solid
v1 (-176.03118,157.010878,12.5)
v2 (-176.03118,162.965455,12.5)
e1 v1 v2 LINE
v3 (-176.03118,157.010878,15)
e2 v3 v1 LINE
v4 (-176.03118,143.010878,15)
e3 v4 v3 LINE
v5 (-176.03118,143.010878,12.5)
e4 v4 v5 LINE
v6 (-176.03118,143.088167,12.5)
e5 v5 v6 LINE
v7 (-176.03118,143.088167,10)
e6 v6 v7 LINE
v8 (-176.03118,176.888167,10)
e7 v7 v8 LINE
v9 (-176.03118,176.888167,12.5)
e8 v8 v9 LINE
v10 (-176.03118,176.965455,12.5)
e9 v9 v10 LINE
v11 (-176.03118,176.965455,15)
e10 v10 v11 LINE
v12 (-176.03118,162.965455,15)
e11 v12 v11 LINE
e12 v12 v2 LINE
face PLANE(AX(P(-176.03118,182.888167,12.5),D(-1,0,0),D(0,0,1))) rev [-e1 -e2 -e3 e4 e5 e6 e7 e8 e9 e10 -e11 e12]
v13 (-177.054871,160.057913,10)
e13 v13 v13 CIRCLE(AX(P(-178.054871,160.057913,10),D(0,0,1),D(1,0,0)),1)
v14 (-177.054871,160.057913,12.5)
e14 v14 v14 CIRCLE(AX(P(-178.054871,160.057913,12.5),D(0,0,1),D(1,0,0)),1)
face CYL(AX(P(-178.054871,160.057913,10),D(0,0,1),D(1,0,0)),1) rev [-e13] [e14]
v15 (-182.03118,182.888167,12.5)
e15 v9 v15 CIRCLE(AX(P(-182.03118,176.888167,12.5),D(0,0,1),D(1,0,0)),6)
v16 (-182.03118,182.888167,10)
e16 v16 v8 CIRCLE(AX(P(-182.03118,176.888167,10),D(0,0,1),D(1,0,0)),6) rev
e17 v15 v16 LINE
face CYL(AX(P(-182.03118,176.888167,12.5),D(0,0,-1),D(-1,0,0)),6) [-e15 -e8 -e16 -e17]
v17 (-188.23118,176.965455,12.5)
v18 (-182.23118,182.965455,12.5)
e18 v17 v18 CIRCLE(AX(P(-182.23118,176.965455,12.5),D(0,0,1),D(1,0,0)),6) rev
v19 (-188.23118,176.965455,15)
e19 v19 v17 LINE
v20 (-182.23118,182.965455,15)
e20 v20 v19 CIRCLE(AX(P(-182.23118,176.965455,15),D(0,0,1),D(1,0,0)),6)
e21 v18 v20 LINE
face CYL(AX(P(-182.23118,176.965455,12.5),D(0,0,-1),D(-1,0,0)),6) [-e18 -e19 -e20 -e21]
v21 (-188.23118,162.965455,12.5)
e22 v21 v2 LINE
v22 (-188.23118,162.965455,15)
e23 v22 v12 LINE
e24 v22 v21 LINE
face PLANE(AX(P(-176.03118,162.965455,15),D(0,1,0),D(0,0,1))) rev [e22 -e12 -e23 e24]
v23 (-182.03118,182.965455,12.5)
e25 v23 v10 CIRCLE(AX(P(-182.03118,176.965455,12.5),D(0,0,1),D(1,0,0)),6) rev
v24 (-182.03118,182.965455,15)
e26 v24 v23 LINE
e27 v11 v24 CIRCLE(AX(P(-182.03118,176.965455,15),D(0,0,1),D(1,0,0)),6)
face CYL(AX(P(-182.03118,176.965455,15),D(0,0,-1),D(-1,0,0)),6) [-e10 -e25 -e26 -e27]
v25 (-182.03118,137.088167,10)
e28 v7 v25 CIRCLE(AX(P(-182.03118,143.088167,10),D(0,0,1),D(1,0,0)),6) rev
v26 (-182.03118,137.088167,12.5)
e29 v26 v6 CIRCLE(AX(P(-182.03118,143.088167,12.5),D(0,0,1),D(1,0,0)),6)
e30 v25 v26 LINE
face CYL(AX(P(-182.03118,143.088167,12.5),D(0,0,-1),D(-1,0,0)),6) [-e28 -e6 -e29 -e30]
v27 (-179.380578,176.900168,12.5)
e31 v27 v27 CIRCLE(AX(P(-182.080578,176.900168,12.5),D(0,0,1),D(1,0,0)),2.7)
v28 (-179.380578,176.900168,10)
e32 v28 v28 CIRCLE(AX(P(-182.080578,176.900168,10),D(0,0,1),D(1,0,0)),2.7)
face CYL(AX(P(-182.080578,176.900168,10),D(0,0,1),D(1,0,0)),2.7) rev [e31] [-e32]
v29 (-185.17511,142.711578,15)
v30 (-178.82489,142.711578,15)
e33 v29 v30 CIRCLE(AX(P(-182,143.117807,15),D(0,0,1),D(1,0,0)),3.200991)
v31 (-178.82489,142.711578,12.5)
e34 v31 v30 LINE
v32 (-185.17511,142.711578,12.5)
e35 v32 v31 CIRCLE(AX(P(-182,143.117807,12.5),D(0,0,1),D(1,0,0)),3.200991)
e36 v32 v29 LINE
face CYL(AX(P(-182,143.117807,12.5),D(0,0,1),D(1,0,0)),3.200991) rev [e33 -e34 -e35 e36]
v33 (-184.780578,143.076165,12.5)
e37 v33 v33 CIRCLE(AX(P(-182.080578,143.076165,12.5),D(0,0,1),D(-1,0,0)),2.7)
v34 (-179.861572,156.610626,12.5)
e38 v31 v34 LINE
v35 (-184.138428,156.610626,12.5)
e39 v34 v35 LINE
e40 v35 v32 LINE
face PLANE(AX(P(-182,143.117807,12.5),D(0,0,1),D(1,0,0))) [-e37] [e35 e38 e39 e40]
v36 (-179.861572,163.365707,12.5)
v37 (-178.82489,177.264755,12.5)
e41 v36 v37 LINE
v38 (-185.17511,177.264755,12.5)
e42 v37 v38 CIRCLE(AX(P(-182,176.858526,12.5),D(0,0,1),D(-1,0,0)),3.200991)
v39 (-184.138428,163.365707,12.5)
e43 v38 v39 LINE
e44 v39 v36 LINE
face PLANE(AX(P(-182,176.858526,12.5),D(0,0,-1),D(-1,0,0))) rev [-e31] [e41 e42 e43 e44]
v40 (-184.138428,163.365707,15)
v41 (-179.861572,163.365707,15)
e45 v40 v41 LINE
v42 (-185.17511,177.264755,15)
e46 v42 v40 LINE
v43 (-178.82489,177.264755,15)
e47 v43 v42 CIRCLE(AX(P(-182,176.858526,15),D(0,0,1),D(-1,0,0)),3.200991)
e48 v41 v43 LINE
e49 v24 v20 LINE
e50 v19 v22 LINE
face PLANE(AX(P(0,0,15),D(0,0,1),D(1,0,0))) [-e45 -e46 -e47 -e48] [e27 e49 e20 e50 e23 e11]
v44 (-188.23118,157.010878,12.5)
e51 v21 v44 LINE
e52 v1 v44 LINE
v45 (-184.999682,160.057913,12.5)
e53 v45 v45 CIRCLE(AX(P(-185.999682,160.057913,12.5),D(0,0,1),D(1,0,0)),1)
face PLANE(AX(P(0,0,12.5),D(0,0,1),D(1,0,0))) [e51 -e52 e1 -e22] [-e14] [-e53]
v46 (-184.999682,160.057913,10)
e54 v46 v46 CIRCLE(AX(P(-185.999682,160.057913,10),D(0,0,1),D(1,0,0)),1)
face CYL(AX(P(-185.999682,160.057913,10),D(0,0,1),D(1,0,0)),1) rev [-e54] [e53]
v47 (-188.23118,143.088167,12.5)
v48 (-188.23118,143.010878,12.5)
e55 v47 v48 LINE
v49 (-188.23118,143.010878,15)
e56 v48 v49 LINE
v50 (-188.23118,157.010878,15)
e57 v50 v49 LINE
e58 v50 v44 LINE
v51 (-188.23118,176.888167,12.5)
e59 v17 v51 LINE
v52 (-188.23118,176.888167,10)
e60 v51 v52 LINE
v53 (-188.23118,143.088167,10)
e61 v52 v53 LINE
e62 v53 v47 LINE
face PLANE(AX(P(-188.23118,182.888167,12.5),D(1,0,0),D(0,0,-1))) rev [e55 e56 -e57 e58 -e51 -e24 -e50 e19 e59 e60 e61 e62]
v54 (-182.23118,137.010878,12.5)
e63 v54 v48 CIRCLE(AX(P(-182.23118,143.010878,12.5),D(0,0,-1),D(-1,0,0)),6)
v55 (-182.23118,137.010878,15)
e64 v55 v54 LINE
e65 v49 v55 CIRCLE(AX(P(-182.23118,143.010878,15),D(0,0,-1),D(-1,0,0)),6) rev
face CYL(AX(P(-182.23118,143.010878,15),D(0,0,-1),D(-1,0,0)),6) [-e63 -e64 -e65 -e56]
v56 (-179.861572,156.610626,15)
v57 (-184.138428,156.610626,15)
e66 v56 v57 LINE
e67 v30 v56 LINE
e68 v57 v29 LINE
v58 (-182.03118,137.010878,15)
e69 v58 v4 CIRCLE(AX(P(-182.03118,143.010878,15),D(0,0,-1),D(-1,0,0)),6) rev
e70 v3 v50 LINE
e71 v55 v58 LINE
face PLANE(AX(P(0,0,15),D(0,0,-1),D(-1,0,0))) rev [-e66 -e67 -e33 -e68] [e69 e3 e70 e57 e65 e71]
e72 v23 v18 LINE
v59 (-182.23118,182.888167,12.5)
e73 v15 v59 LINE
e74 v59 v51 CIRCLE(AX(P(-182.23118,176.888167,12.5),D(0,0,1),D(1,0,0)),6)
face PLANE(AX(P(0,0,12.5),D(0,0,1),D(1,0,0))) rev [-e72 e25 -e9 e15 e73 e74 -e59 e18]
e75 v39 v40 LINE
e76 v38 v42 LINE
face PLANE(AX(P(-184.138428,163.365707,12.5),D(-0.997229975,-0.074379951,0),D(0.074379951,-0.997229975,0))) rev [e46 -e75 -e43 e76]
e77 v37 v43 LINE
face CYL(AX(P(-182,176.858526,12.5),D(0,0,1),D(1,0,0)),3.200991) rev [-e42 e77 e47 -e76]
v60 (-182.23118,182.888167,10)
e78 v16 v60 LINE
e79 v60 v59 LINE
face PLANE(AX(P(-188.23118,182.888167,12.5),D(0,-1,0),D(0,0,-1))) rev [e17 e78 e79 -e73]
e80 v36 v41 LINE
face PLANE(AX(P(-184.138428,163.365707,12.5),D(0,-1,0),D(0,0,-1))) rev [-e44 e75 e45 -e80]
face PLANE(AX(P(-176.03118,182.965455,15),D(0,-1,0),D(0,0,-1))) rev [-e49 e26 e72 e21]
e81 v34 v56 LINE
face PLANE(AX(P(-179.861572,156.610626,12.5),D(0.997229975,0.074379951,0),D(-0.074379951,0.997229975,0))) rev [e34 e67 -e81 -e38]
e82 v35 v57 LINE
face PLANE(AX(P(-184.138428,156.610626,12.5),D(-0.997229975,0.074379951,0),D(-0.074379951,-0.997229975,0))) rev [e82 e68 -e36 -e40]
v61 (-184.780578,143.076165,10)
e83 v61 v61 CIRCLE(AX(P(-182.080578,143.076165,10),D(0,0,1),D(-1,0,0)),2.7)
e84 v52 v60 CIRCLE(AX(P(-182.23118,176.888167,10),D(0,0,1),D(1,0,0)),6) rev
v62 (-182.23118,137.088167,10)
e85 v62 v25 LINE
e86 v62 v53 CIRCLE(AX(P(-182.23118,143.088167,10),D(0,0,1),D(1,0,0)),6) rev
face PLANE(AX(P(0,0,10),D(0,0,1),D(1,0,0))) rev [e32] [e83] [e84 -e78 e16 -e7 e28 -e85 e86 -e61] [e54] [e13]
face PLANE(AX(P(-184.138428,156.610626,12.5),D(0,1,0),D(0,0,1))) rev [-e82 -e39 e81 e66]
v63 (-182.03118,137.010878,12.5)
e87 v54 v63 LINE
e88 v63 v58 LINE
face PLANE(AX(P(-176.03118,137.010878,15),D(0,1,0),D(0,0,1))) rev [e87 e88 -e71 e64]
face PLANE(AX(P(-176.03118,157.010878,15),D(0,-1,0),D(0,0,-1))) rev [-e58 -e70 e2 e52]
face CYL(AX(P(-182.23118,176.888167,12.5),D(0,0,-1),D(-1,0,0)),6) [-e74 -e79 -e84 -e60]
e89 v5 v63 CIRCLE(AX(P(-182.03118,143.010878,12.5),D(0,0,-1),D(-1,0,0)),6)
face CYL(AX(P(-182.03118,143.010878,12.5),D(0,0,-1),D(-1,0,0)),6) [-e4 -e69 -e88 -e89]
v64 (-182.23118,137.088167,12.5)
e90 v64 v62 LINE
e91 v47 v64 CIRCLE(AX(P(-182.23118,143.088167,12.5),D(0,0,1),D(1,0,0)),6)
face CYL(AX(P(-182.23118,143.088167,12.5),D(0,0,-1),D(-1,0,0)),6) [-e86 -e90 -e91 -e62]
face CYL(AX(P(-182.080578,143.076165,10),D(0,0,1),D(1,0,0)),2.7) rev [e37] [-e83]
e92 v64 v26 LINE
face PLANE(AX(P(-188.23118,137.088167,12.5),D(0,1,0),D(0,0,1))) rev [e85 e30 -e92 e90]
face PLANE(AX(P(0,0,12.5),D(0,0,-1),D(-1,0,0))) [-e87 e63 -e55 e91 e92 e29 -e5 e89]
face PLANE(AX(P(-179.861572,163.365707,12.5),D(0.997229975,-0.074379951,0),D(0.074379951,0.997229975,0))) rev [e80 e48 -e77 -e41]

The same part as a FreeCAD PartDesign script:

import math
import FreeCAD as App
import Part
import Sketcher

V = App.Vector
Q = App.Units.Quantity


def edges_at(feature, points):
    """Names of the edges that pass closest to the given points."""
    edges = feature.Shape.Edges
    near = lambda p: min(range(len(edges)), key=lambda i: edges[i].distToShape(Part.Vertex(*p))[0])
    return sorted({f"Edge{near(p) + 1}" for p in points})

doc = App.newDocument("Part")
body = doc.addObject("PartDesign::Body", "Body")

# Sketch on XY plane
sketch1 = body.newObject("Sketcher::SketchObject", "Sketch")
sketch1.AttachmentSupport = (doc.getObject("XY_Plane"), [""])
sketch1.MapMode = "FlatFace"
sketch1.AttachmentOffset = App.Placement(V(0, 0, 10), App.Rotation())
sketch1.addGeometry([
    Part.LineSegment(V(-188.23118, 182.888167, 0), V(-188.23118, 137.088167, 0)),
    Part.LineSegment(V(-188.23118, 137.088167, 0), V(-176.03118, 137.088167, 0)),
    Part.LineSegment(V(-176.03118, 137.088167, 0), V(-176.03118, 182.888167, 0)),
    Part.LineSegment(V(-176.03118, 182.888167, 0), V(-188.23118, 182.888167, 0)),
], False)
sketch1.addConstraint([
    Sketcher.Constraint("Coincident", 0, 2, 1, 1),
    Sketcher.Constraint("Coincident", 1, 2, 2, 1),
    Sketcher.Constraint("Coincident", 2, 2, 3, 1),
    Sketcher.Constraint("Coincident", 3, 2, 0, 1),
    Sketcher.Constraint("Vertical", 0),
    Sketcher.Constraint("Horizontal", 1),
    Sketcher.Constraint("Vertical", 2),
    Sketcher.Constraint("Horizontal", 3),
    Sketcher.Constraint("DistanceX", 1, 1, 1, 2, Q("12.2 mm")),
    Sketcher.Constraint("DistanceY", 0, 2, 0, 1, Q("45.8 mm")),
    Sketcher.Constraint("DistanceX", 0, 2, -1, 1, Q("188.23118 mm")),
    Sketcher.Constraint("DistanceY", -1, 1, 0, 2, Q("137.088167 mm")),
])
pad1 = body.newObject("PartDesign::Pad", "Pad")
pad1.Profile = sketch1
pad1.Length = 2.5
doc.recompute()

fillet = body.newObject("PartDesign::Fillet", "Fillet")
fillet.Base = (pad1, edges_at(pad1, [
    (-188.231, 182.888, 11.25),
    (-176.031, 182.888, 11.25),
    (-176.031, 137.088, 11.25),
    (-188.231, 137.088, 11.25),
]))
fillet.Radius = 6

# Sketch on XY plane
sketch2 = body.newObject("Sketcher::SketchObject", "Sketch001")
sketch2.AttachmentSupport = (doc.getObject("XY_Plane"), [""])
sketch2.MapMode = "FlatFace"
sketch2.AttachmentOffset = App.Placement(V(0, 0, 12.5), App.Rotation())
sketch2.addGeometry([
    Part.LineSegment(V(-188.23118, 182.965455, 0), V(-188.23118, 162.965455, 0)),  # 0
    Part.LineSegment(V(-188.23118, 162.965455, 0), V(-176.03118, 162.965455, 0)),  # 1
    Part.LineSegment(V(-176.03118, 162.965455, 0), V(-176.03118, 182.965455, 0)),  # 2
    Part.LineSegment(V(-176.03118, 182.965455, 0), V(-188.23118, 182.965455, 0)),  # 3
    Part.LineSegment(V(-188.23118, 157.010878, 0), V(-188.23118, 137.010878, 0)),  # 4
    Part.LineSegment(V(-188.23118, 137.010878, 0), V(-176.03118, 137.010878, 0)),  # 5
    Part.LineSegment(V(-176.03118, 137.010878, 0), V(-176.03118, 157.010878, 0)),  # 6
    Part.LineSegment(V(-176.03118, 157.010878, 0), V(-188.23118, 157.010878, 0)),  # 7
], False)
sketch2.addConstraint([
    Sketcher.Constraint("Coincident", 0, 2, 1, 1),
    Sketcher.Constraint("Coincident", 1, 2, 2, 1),
    Sketcher.Constraint("Coincident", 2, 2, 3, 1),
    Sketcher.Constraint("Coincident", 3, 2, 0, 1),
    Sketcher.Constraint("Coincident", 4, 2, 5, 1),
    Sketcher.Constraint("Coincident", 5, 2, 6, 1),
    Sketcher.Constraint("Coincident", 6, 2, 7, 1),
    Sketcher.Constraint("Coincident", 7, 2, 4, 1),
    Sketcher.Constraint("Vertical", 0),
    Sketcher.Constraint("Horizontal", 1),
    Sketcher.Constraint("Vertical", 2),
    Sketcher.Constraint("Horizontal", 3),
    Sketcher.Constraint("Vertical", 4),
    Sketcher.Constraint("Horizontal", 5),
    Sketcher.Constraint("Vertical", 6),
    Sketcher.Constraint("Horizontal", 7),
    Sketcher.Constraint("Vertical", 3, 2, 4, 2),
    Sketcher.Constraint("Vertical", 2, 2, 5, 2),
    Sketcher.Constraint("Equal", 2, 4),
    Sketcher.Constraint("DistanceY", 0, 2, 0, 1, Q("20 mm")),
    Sketcher.Constraint("DistanceX", 1, 1, 1, 2, Q("12.2 mm")),
    Sketcher.Constraint("DistanceX", 0, 2, -1, 1, Q("188.23118 mm")),
    Sketcher.Constraint("DistanceY", -1, 1, 4, 2, Q("137.010878 mm")),
    Sketcher.Constraint("DistanceY", -1, 1, 0, 2, Q("162.965455 mm")),
])
pad2 = body.newObject("PartDesign::Pad", "Pad001")
pad2.Profile = sketch2
pad2.Length = 2.5
doc.recompute()

fillet2 = body.newObject("PartDesign::Fillet", "Fillet001")
fillet2.Base = (pad2, edges_at(pad2, [
    (-176.031, 182.965, 13.75),
    (-188.231, 182.965, 13.75),
    (-176.031, 137.011, 13.75),
    (-188.231, 137.011, 13.75),
]))
fillet2.Radius = 6

# Sketch on XY plane
sketch3 = body.newObject("Sketcher::SketchObject", "Sketch002")
sketch3.AttachmentSupport = (doc.getObject("XY_Plane"), [""])
sketch3.MapMode = "FlatFace"
sketch3.AttachmentOffset = App.Placement(V(0, 0, 12.5), App.Rotation())
sketch3.addGeometry([
    Part.Circle(V(-185.999682, 160.057913, 0), V(0, 0, 1), 1),
    Part.Circle(V(-178.054871, 160.057913, 0), V(0, 0, 1), 1),
], False)
sketch3.addConstraint([
    Sketcher.Constraint("Equal", 0, 1),
    Sketcher.Constraint("Horizontal", 0, 3, 1, 3),
    Sketcher.Constraint("Diameter", 0, Q("2 mm")),
    Sketcher.Constraint("DistanceX", 1, 3, -1, 1, Q("178.054871 mm")),
    Sketcher.Constraint("DistanceX", 0, 3, 1, 3, Q("7.944811 mm")),
    Sketcher.Constraint("DistanceY", -1, 1, 0, 3, Q("160.057913 mm")),
])
pocket1 = body.newObject("PartDesign::Pocket", "Pocket")
pocket1.Profile = sketch3
pocket1.Length = 2.5

# Sketch on XY plane
sketch4 = body.newObject("Sketcher::SketchObject", "Sketch003")
sketch4.AttachmentSupport = (doc.getObject("XY_Plane"), [""])
sketch4.MapMode = "FlatFace"
sketch4.AttachmentOffset = App.Placement(V(0, 0, 15), App.Rotation())
sketch4.addGeometry([
    Part.LineSegment(V(-184.138428, 163.365707, 0), V(-179.861572, 163.365707, 0)),  # 0
    Part.LineSegment(V(-179.861572, 163.365707, 0), V(-178.82489, 177.264755, 0)),  # 1
    Part.ArcOfCircle(Part.Circle(V(-182, 176.858526, 0), V(0, 0, 1), 3.200991), math.radians(7.290906), math.radians(172.709094)),  # 2
    Part.LineSegment(V(-185.17511, 177.264755, 0), V(-184.138428, 163.365707, 0)),  # 3
    Part.LineSegment(V(-184.138428, 156.610626, 0), V(-185.17511, 142.711578, 0)),  # 4
    Part.ArcOfCircle(Part.Circle(V(-182, 143.117807, 0), V(0, 0, 1), 3.200991), math.radians(-172.709094), math.radians(-7.290906)),  # 5
    Part.LineSegment(V(-178.82489, 142.711578, 0), V(-179.861572, 156.610626, 0)),  # 6
    Part.LineSegment(V(-179.861572, 156.610626, 0), V(-184.138428, 156.610626, 0)),  # 7
], False)
sketch4.addConstraint([
    Sketcher.Constraint("Coincident", 0, 2, 1, 1),
    Sketcher.Constraint("Coincident", 1, 2, 2, 1),
    Sketcher.Constraint("Coincident", 2, 2, 3, 1),
    Sketcher.Constraint("Coincident", 3, 2, 0, 1),
    Sketcher.Constraint("Coincident", 4, 2, 5, 1),
    Sketcher.Constraint("Coincident", 5, 2, 6, 1),
    Sketcher.Constraint("Coincident", 6, 2, 7, 1),
    Sketcher.Constraint("Coincident", 7, 2, 4, 1),
    Sketcher.Constraint("Horizontal", 0),
    Sketcher.Constraint("Horizontal", 7),
    Sketcher.Constraint("Equal", 2, 5),
    Sketcher.Constraint("Parallel", 1, 4),
    Sketcher.Constraint("Parallel", 3, 6),
    Sketcher.Constraint("Horizontal", 1, 2, 2, 2),
    Sketcher.Constraint("Horizontal", 4, 2, 5, 2),
    Sketcher.Constraint("Vertical", 2, 3, 5, 3),
    Sketcher.Constraint("Vertical", 2, 2, 4, 2),
    Sketcher.Constraint("Vertical", 0, 2, 6, 2),
    Sketcher.Constraint("Vertical", 3, 2, 7, 2),
    Sketcher.Constraint("DistanceX", 2, 3, -1, 1, Q("182 mm")),
    Sketcher.Constraint("Radius", 2, Q("3.200991 mm")),
    Sketcher.Constraint("DistanceY", 5, 3, 0, 2, Q("20.2479 mm")),
    Sketcher.Constraint("DistanceX", 0, 1, 0, 2, Q("4.276855 mm")),
    Sketcher.Constraint("DistanceX", 1, 2, -1, 1, Q("178.82489 mm")),
    Sketcher.Constraint("DistanceY", -1, 1, 4, 2, Q("142.711578 mm")),
    Sketcher.Constraint("DistanceY", 5, 3, 2, 3, Q("33.740719 mm")),
])
pocket2 = body.newObject("PartDesign::Pocket", "Pocket001")
pocket2.Profile = sketch4
pocket2.Length = 2.5

# Sketch on XY plane
sketch5 = body.newObject("Sketcher::SketchObject", "Sketch004")
sketch5.AttachmentSupport = (doc.getObject("XY_Plane"), [""])
sketch5.MapMode = "FlatFace"
sketch5.AttachmentOffset = App.Placement(V(0, 0, 12.5), App.Rotation())
sketch5.addGeometry([
    Part.Circle(V(-182.080578, 176.900168, 0), V(0, 0, 1), 2.7),
    Part.Circle(V(-182.080578, 143.076165, 0), V(0, 0, 1), 2.7),
], False)
sketch5.addConstraint([
    Sketcher.Constraint("Equal", 0, 1),
    Sketcher.Constraint("Vertical", 0, 3, 1, 3),
    Sketcher.Constraint("Diameter", 0, Q("5.4 mm")),
    Sketcher.Constraint("DistanceY", -1, 1, 0, 3, Q("176.900168 mm")),
    Sketcher.Constraint("DistanceX", 0, 3, -1, 1, Q("182.080578 mm")),
    Sketcher.Constraint("DistanceY", -1, 1, 1, 3, Q("143.076165 mm")),
])
pocket3 = body.newObject("PartDesign::Pocket", "Pocket002")
pocket3.Profile = sketch5
pocket3.Length = 2.5

doc.recompute()
